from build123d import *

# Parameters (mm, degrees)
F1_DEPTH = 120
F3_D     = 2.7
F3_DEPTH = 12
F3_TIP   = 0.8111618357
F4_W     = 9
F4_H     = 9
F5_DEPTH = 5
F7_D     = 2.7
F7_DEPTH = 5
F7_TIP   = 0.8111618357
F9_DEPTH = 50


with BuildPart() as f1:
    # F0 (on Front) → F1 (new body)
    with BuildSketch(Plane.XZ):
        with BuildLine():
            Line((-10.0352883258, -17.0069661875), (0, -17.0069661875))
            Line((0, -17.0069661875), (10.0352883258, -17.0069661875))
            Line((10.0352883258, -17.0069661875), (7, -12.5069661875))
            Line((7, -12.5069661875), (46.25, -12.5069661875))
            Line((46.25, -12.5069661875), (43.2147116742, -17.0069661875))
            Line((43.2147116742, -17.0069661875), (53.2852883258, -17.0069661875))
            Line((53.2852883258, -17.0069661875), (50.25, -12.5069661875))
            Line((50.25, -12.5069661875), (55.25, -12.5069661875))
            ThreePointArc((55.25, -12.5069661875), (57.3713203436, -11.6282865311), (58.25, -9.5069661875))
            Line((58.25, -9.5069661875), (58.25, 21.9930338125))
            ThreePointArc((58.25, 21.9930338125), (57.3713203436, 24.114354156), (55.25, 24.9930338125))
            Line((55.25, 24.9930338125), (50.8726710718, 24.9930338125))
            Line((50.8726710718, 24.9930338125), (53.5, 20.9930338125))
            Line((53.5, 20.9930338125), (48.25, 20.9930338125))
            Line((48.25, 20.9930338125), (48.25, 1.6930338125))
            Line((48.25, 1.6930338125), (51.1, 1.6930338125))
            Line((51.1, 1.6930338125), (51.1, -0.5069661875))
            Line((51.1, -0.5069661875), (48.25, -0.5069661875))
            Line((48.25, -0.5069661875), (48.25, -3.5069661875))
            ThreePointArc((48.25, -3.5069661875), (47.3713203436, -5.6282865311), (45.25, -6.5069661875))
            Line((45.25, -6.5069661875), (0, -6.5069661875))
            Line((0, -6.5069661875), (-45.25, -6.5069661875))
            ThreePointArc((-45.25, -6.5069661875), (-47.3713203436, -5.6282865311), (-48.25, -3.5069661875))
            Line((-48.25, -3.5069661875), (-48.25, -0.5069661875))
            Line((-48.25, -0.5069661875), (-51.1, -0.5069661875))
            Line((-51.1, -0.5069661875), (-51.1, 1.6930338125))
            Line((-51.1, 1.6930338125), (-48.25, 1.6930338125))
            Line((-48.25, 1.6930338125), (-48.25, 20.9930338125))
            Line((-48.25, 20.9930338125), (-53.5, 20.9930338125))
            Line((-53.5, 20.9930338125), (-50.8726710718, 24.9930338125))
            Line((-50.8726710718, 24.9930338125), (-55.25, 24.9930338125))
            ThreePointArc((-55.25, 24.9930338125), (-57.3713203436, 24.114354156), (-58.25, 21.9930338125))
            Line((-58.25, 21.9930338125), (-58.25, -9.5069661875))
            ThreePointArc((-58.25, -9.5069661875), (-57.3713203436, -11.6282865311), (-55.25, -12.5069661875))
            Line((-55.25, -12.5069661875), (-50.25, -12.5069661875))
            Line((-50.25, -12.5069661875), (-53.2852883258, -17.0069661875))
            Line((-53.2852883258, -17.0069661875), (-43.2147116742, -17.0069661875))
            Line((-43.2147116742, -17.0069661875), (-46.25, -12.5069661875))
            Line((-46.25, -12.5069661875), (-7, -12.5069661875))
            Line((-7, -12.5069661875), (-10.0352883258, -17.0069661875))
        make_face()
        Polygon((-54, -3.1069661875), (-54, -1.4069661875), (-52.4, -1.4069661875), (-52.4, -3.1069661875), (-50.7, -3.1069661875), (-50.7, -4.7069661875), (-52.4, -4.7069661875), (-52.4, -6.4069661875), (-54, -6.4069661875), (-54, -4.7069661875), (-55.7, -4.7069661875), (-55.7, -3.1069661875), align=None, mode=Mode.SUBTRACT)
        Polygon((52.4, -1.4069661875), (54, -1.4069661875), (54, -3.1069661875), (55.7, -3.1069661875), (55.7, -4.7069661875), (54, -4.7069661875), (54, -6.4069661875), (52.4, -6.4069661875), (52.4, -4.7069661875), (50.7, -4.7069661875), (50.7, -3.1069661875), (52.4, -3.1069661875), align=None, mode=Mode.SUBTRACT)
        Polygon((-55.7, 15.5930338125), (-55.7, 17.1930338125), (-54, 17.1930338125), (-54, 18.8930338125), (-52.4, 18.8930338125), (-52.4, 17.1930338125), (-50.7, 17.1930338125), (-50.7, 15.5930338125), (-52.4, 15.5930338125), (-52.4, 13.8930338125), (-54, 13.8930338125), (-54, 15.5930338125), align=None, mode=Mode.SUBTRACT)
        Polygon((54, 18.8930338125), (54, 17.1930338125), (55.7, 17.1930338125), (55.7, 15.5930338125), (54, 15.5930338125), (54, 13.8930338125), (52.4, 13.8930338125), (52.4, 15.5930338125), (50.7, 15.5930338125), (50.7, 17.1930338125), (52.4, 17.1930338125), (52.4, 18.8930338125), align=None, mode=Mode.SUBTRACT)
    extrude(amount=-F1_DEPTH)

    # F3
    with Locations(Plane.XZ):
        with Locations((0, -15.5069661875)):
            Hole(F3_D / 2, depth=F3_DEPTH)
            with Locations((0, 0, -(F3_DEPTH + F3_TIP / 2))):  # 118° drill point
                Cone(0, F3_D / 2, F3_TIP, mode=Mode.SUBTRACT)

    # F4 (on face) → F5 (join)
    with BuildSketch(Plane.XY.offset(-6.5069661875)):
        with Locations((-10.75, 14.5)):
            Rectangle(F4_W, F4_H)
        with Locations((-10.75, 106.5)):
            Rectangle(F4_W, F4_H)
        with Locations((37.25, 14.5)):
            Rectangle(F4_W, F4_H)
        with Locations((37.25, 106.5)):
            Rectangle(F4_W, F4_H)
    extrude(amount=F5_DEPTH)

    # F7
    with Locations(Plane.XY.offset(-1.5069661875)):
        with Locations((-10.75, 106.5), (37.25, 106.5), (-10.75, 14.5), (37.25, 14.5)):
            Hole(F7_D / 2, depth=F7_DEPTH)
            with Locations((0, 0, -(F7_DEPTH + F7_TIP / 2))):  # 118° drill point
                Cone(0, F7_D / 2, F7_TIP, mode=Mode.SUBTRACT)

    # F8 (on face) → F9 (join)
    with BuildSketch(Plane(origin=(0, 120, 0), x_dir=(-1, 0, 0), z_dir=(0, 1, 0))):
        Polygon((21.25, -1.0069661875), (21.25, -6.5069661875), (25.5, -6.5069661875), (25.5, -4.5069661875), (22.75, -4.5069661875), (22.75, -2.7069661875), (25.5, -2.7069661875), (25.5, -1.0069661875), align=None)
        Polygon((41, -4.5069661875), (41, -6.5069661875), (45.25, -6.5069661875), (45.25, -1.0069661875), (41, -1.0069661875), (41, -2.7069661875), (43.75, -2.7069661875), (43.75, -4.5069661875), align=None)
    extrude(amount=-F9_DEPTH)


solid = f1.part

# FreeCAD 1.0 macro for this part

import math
import FreeCAD as App
import Part
import Sketcher

V = App.Vector
Q = App.Units.Quantity

doc = App.newDocument("Part")
params = doc.addObject("Spreadsheet::Sheet", "Params")
for row, (alias, value) in enumerate([
    ("sketch1_radius", "3 mm"),
    ("sketch1_width", "5 mm"),
    ("sketch1_height", "3 mm"),
    ("sketch1_width2", "90.5 mm"),
    ("sketch1_width3", "1.7 mm"),
    ("pad1_length", "120 mm"),
    ("sketch2_diameter", "2.7 mm"),
    ("hole_diameter", "2.7 mm"),
    ("hole_depth", "12 mm"),
    ("sketch3_width", "9 mm"),
    ("pad2_length", "5 mm"),
    ("sketch4_diameter", "2.7 mm"),
    ("hole2_diameter", "2.7 mm"),
    ("hole2_depth", "5 mm"),
    ("sketch5_height", "2 mm"),
    ("sketch5_height2", "5.5 mm"),
    ("sketch5_height3", "1.8 mm"),
    ("sketch5_width", "4.25 mm"),
    ("sketch5_width2", "2.75 mm"),
    ("pad3_length", "50 mm"),
], start=1):
    params.set(f"A{row}", alias)
    params.set(f"B{row}", "=" + value)
    params.setAlias(f"B{row}", alias)

body = doc.addObject("PartDesign::Body", "Body")

sketch1 = body.newObject("Sketcher::SketchObject", "Sketch")
sketch1.AttachmentSupport = (doc.getObject("XZ_Plane"), [""])
sketch1.MapMode = "FlatFace"
sketch1.addGeometry(Part.LineSegment(V(-10, -17, 0), V(10, -17, 0)), False)
sketch1.addGeometry(Part.LineSegment(V(10, -17, 0), V(7, -12.5, 0)), False)
sketch1.addGeometry(Part.LineSegment(V(7, -12.5, 0), V(46.2, -12.5, 0)), False)
sketch1.addGeometry(Part.LineSegment(V(46.2, -12.5, 0), V(43.2, -17, 0)), False)
sketch1.addGeometry(Part.LineSegment(V(43.2, -17, 0), V(53.3, -17, 0)), False)
sketch1.addGeometry(Part.LineSegment(V(53.3, -17, 0), V(50.2, -12.5, 0)), False)
sketch1.addGeometry(Part.LineSegment(V(50.2, -12.5, 0), V(55.2, -12.5, 0)), False)
sketch1.addGeometry(Part.ArcOfCircle(Part.Circle(V(55.2, -9.5, 0), V(0, 0, 1), 3), math.radians(-90), math.radians(0)), False)
sketch1.addGeometry(Part.LineSegment(V(58.2, -9.5, 0), V(58.2, 22, 0)), False)
sketch1.addGeometry(Part.ArcOfCircle(Part.Circle(V(55.2, 22, 0), V(0, 0, 1), 3), math.radians(0), math.radians(90)), False)
sketch1.addGeometry(Part.LineSegment(V(55.2, 25, 0), V(50.9, 25, 0)), False)
sketch1.addGeometry(Part.LineSegment(V(50.9, 25, 0), V(53.5, 21, 0)), False)
sketch1.addGeometry(Part.LineSegment(V(53.5, 21, 0), V(48.2, 21, 0)), False)
sketch1.addGeometry(Part.LineSegment(V(48.2, 21, 0), V(48.2, 1.7, 0)), False)
sketch1.addGeometry(Part.LineSegment(V(48.2, 1.7, 0), V(51.1, 1.7, 0)), False)
sketch1.addGeometry(Part.LineSegment(V(51.1, 1.7, 0), V(51.1, -0.5, 0)), False)
sketch1.addGeometry(Part.LineSegment(V(51.1, -0.5, 0), V(48.2, -0.5, 0)), False)
sketch1.addGeometry(Part.LineSegment(V(48.2, -0.5, 0), V(48.2, -3.5, 0)), False)
sketch1.addGeometry(Part.ArcOfCircle(Part.Circle(V(45.2, -3.5, 0), V(0, 0, 1), 3), math.radians(-90), math.radians(0)), False)
sketch1.addGeometry(Part.LineSegment(V(45.2, -6.5, 0), V(-45.2, -6.5, 0)), False)
sketch1.addGeometry(Part.ArcOfCircle(Part.Circle(V(-45.2, -3.5, 0), V(0, 0, 1), 3), math.radians(180), math.radians(270)), False)
sketch1.addGeometry(Part.LineSegment(V(-48.2, -3.5, 0), V(-48.2, -0.5, 0)), False)
sketch1.addGeometry(Part.LineSegment(V(-48.2, -0.5, 0), V(-51.1, -0.5, 0)), False)
sketch1.addGeometry(Part.LineSegment(V(-51.1, -0.5, 0), V(-51.1, 1.7, 0)), False)
sketch1.addGeometry(Part.LineSegment(V(-51.1, 1.7, 0), V(-48.2, 1.7, 0)), False)
sketch1.addGeometry(Part.LineSegment(V(-48.2, 1.7, 0), V(-48.2, 21, 0)), False)
sketch1.addGeometry(Part.LineSegment(V(-48.2, 21, 0), V(-53.5, 21, 0)), False)
sketch1.addGeometry(Part.LineSegment(V(-53.5, 21, 0), V(-50.9, 25, 0)), False)
sketch1.addGeometry(Part.LineSegment(V(-50.9, 25, 0), V(-55.2, 25, 0)), False)
sketch1.addGeometry(Part.ArcOfCircle(Part.Circle(V(-55.2, 22, 0), V(0, 0, 1), 3), math.radians(90), math.radians(180)), False)
sketch1.addGeometry(Part.LineSegment(V(-58.2, 22, 0), V(-58.2, -9.5, 0)), False)
sketch1.addGeometry(Part.ArcOfCircle(Part.Circle(V(-55.2, -9.5, 0), V(0, 0, 1), 3), math.radians(180), math.radians(270)), False)
sketch1.addGeometry(Part.LineSegment(V(-55.2, -12.5, 0), V(-50.2, -12.5, 0)), False)
sketch1.addGeometry(Part.LineSegment(V(-50.2, -12.5, 0), V(-53.3, -17, 0)), False)
sketch1.addGeometry(Part.LineSegment(V(-53.3, -17, 0), V(-43.2, -17, 0)), False)
sketch1.addGeometry(Part.LineSegment(V(-43.2, -17, 0), V(-46.2, -12.5, 0)), False)
sketch1.addGeometry(Part.LineSegment(V(-46.2, -12.5, 0), V(-7, -12.5, 0)), False)
sketch1.addGeometry(Part.LineSegment(V(-7, -12.5, 0), V(-10, -17, 0)), False)
sketch1.addGeometry(Part.LineSegment(V(-55.7, -3.1, 0), V(-54, -3.1, 0)), False)
sketch1.addGeometry(Part.LineSegment(V(-54, -3.1, 0), V(-54, -1.4, 0)), False)
sketch1.addGeometry(Part.LineSegment(V(-54, -1.4, 0), V(-52.4, -1.4, 0)), False)
sketch1.addGeometry(Part.LineSegment(V(-52.4, -1.4, 0), V(-52.4, -3.1, 0)), False)
sketch1.addGeometry(Part.LineSegment(V(-52.4, -3.1, 0), V(-50.7, -3.1, 0)), False)
sketch1.addGeometry(Part.LineSegment(V(-50.7, -3.1, 0), V(-50.7, -4.7, 0)), False)
sketch1.addGeometry(Part.LineSegment(V(-50.7, -4.7, 0), V(-52.4, -4.7, 0)), False)
sketch1.addGeometry(Part.LineSegment(V(-52.4, -4.7, 0), V(-52.4, -6.4, 0)), False)
sketch1.addGeometry(Part.LineSegment(V(-52.4, -6.4, 0), V(-54, -6.4, 0)), False)
sketch1.addGeometry(Part.LineSegment(V(-54, -6.4, 0), V(-54, -4.7, 0)), False)
sketch1.addGeometry(Part.LineSegment(V(-54, -4.7, 0), V(-55.7, -4.7, 0)), False)
sketch1.addGeometry(Part.LineSegment(V(-55.7, -4.7, 0), V(-55.7, -3.1, 0)), False)
sketch1.addGeometry(Part.LineSegment(V(52.4, -3.1, 0), V(52.4, -1.4, 0)), False)
sketch1.addGeometry(Part.LineSegment(V(52.4, -1.4, 0), V(54, -1.4, 0)), False)
sketch1.addGeometry(Part.LineSegment(V(54, -1.4, 0), V(54, -3.1, 0)), False)
sketch1.addGeometry(Part.LineSegment(V(54, -3.1, 0), V(55.7, -3.1, 0)), False)
sketch1.addGeometry(Part.LineSegment(V(55.7, -3.1, 0), V(55.7, -4.7, 0)), False)
sketch1.addGeometry(Part.LineSegment(V(55.7, -4.7, 0), V(54, -4.7, 0)), False)
sketch1.addGeometry(Part.LineSegment(V(54, -4.7, 0), V(54, -6.4, 0)), False)
sketch1.addGeometry(Part.LineSegment(V(54, -6.4, 0), V(52.4, -6.4, 0)), False)
sketch1.addGeometry(Part.LineSegment(V(52.4, -6.4, 0), V(52.4, -4.7, 0)), False)
sketch1.addGeometry(Part.LineSegment(V(52.4, -4.7, 0), V(50.7, -4.7, 0)), False)
sketch1.addGeometry(Part.LineSegment(V(50.7, -4.7, 0), V(50.7, -3.1, 0)), False)
sketch1.addGeometry(Part.LineSegment(V(50.7, -3.1, 0), V(52.4, -3.1, 0)), False)
sketch1.addGeometry(Part.LineSegment(V(-54, 15.6, 0), V(-55.7, 15.6, 0)), False)
sketch1.addGeometry(Part.LineSegment(V(-55.7, 15.6, 0), V(-55.7, 17.2, 0)), False)
sketch1.addGeometry(Part.LineSegment(V(-55.7, 17.2, 0), V(-54, 17.2, 0)), False)
sketch1.addGeometry(Part.LineSegment(V(-54, 17.2, 0), V(-54, 18.9, 0)), False)
sketch1.addGeometry(Part.LineSegment(V(-54, 18.9, 0), V(-52.4, 18.9, 0)), False)
sketch1.addGeometry(Part.LineSegment(V(-52.4, 18.9, 0), V(-52.4, 17.2, 0)), False)
sketch1.addGeometry(Part.LineSegment(V(-52.4, 17.2, 0), V(-50.7, 17.2, 0)), False)
sketch1.addGeometry(Part.LineSegment(V(-50.7, 17.2, 0), V(-50.7, 15.6, 0)), False)
sketch1.addGeometry(Part.LineSegment(V(-50.7, 15.6, 0), V(-52.4, 15.6, 0)), False)
sketch1.addGeometry(Part.LineSegment(V(-52.4, 15.6, 0), V(-52.4, 13.9, 0)), False)
sketch1.addGeometry(Part.LineSegment(V(-52.4, 13.9, 0), V(-54, 13.9, 0)), False)
sketch1.addGeometry(Part.LineSegment(V(-54, 13.9, 0), V(-54, 15.6, 0)), False)
sketch1.addGeometry(Part.LineSegment(V(52.4, 18.9, 0), V(54, 18.9, 0)), False)
sketch1.addGeometry(Part.LineSegment(V(54, 18.9, 0), V(54, 17.2, 0)), False)
sketch1.addGeometry(Part.LineSegment(V(54, 17.2, 0), V(55.7, 17.2, 0)), False)
sketch1.addGeometry(Part.LineSegment(V(55.7, 17.2, 0), V(55.7, 15.6, 0)), False)
sketch1.addGeometry(Part.LineSegment(V(55.7, 15.6, 0), V(54, 15.6, 0)), False)
sketch1.addGeometry(Part.LineSegment(V(54, 15.6, 0), V(54, 13.9, 0)), False)
sketch1.addGeometry(Part.LineSegment(V(54, 13.9, 0), V(52.4, 13.9, 0)), False)
sketch1.addGeometry(Part.LineSegment(V(52.4, 13.9, 0), V(52.4, 15.6, 0)), False)
sketch1.addGeometry(Part.LineSegment(V(52.4, 15.6, 0), V(50.7, 15.6, 0)), False)
sketch1.addGeometry(Part.LineSegment(V(50.7, 15.6, 0), V(50.7, 17.2, 0)), False)
sketch1.addGeometry(Part.LineSegment(V(50.7, 17.2, 0), V(52.4, 17.2, 0)), False)
sketch1.addGeometry(Part.LineSegment(V(52.4, 17.2, 0), V(52.4, 18.9, 0)), False)
sketch1.addConstraint(Sketcher.Constraint("Coincident", 0, 2, 1, 1))
sketch1.addConstraint(Sketcher.Constraint("Coincident", 1, 2, 2, 1))
sketch1.addConstraint(Sketcher.Constraint("Coincident", 2, 2, 3, 1))
sketch1.addConstraint(Sketcher.Constraint("Coincident", 3, 2, 4, 1))
sketch1.addConstraint(Sketcher.Constraint("Coincident", 4, 2, 5, 1))
sketch1.addConstraint(Sketcher.Constraint("Coincident", 5, 2, 6, 1))
sketch1.addConstraint(Sketcher.Constraint("Tangent", 6, 2, 7, 1))
sketch1.addConstraint(Sketcher.Constraint("Tangent", 7, 2, 8, 1))
sketch1.addConstraint(Sketcher.Constraint("Tangent", 8, 2, 9, 1))
sketch1.addConstraint(Sketcher.Constraint("Tangent", 9, 2, 10, 1))
sketch1.addConstraint(Sketcher.Constraint("Coincident", 10, 2, 11, 1))
sketch1.addConstraint(Sketcher.Constraint("Coincident", 11, 2, 12, 1))
sketch1.addConstraint(Sketcher.Constraint("Coincident", 12, 2, 13, 1))
sketch1.addConstraint(Sketcher.Constraint("Coincident", 13, 2, 14, 1))
sketch1.addConstraint(Sketcher.Constraint("Coincident", 14, 2, 15, 1))
sketch1.addConstraint(Sketcher.Constraint("Coincident", 15, 2, 16, 1))
sketch1.addConstraint(Sketcher.Constraint("Coincident", 16, 2, 17, 1))
sketch1.addConstraint(Sketcher.Constraint("Tangent", 17, 2, 18, 2))
sketch1.addConstraint(Sketcher.Constraint("Tangent", 18, 1, 19, 1))
sketch1.addConstraint(Sketcher.Constraint("Tangent", 19, 2, 20, 2))
sketch1.addConstraint(Sketcher.Constraint("Tangent", 20, 1, 21, 1))
sketch1.addConstraint(Sketcher.Constraint("Coincident", 21, 2, 22, 1))
sketch1.addConstraint(Sketcher.Constraint("Coincident", 22, 2, 23, 1))
sketch1.addConstraint(Sketcher.Constraint("Coincident", 23, 2, 24, 1))
sketch1.addConstraint(Sketcher.Constraint("Coincident", 24, 2, 25, 1))
sketch1.addConstraint(Sketcher.Constraint("Coincident", 25, 2, 26, 1))
sketch1.addConstraint(Sketcher.Constraint("Coincident", 26, 2, 27, 1))
sketch1.addConstraint(Sketcher.Constraint("Coincident", 27, 2, 28, 1))
sketch1.addConstraint(Sketcher.Constraint("Tangent", 28, 2, 29, 1))
sketch1.addConstraint(Sketcher.Constraint("Tangent", 29, 2, 30, 1))
sketch1.addConstraint(Sketcher.Constraint("Tangent", 30, 2, 31, 1))
sketch1.addConstraint(Sketcher.Constraint("Tangent", 31, 2, 32, 1))
sketch1.addConstraint(Sketcher.Constraint("Coincident", 32, 2, 33, 1))
sketch1.addConstraint(Sketcher.Constraint("Coincident", 33, 2, 34, 1))
sketch1.addConstraint(Sketcher.Constraint("Coincident", 34, 2, 35, 1))
sketch1.addConstraint(Sketcher.Constraint("Coincident", 35, 2, 36, 1))
sketch1.addConstraint(Sketcher.Constraint("Coincident", 36, 2, 37, 1))
sketch1.addConstraint(Sketcher.Constraint("Coincident", 37, 2, 0, 1))
sketch1.addConstraint(Sketcher.Constraint("Coincident", 38, 2, 39, 1))
sketch1.addConstraint(Sketcher.Constraint("Coincident", 39, 2, 40, 1))
sketch1.addConstraint(Sketcher.Constraint("Coincident", 40, 2, 41, 1))
sketch1.addConstraint(Sketcher.Constraint("Coincident", 41, 2, 42, 1))
sketch1.addConstraint(Sketcher.Constraint("Coincident", 42, 2, 43, 1))
sketch1.addConstraint(Sketcher.Constraint("Coincident", 43, 2, 44, 1))
sketch1.addConstraint(Sketcher.Constraint("Coincident", 44, 2, 45, 1))
sketch1.addConstraint(Sketcher.Constraint("Coincident", 45, 2, 46, 1))
sketch1.addConstraint(Sketcher.Constraint("Coincident", 46, 2, 47, 1))
sketch1.addConstraint(Sketcher.Constraint("Coincident", 47, 2, 48, 1))
sketch1.addConstraint(Sketcher.Constraint("Coincident", 48, 2, 49, 1))
sketch1.addConstraint(Sketcher.Constraint("Coincident", 49, 2, 38, 1))
sketch1.addConstraint(Sketcher.Constraint("Coincident", 50, 2, 51, 1))
sketch1.addConstraint(Sketcher.Constraint("Coincident", 51, 2, 52, 1))
sketch1.addConstraint(Sketcher.Constraint("Coincident", 52, 2, 53, 1))
sketch1.addConstraint(Sketcher.Constraint("Coincident", 53, 2, 54, 1))
sketch1.addConstraint(Sketcher.Constraint("Coincident", 54, 2, 55, 1))
sketch1.addConstraint(Sketcher.Constraint("Coincident", 55, 2, 56, 1))
sketch1.addConstraint(Sketcher.Constraint("Coincident", 56, 2, 57, 1))
sketch1.addConstraint(Sketcher.Constraint("Coincident", 57, 2, 58, 1))
sketch1.addConstraint(Sketcher.Constraint("Coincident", 58, 2, 59, 1))
sketch1.addConstraint(Sketcher.Constraint("Coincident", 59, 2, 60, 1))
sketch1.addConstraint(Sketcher.Constraint("Coincident", 60, 2, 61, 1))
sketch1.addConstraint(Sketcher.Constraint("Coincident", 61, 2, 50, 1))
sketch1.addConstraint(Sketcher.Constraint("Coincident", 62, 2, 63, 1))
sketch1.addConstraint(Sketcher.Constraint("Coincident", 63, 2, 64, 1))
sketch1.addConstraint(Sketcher.Constraint("Coincident", 64, 2, 65, 1))
sketch1.addConstraint(Sketcher.Constraint("Coincident", 65, 2, 66, 1))
sketch1.addConstraint(Sketcher.Constraint("Coincident", 66, 2, 67, 1))
sketch1.addConstraint(Sketcher.Constraint("Coincident", 67, 2, 68, 1))
sketch1.addConstraint(Sketcher.Constraint("Coincident", 68, 2, 69, 1))
sketch1.addConstraint(Sketcher.Constraint("Coincident", 69, 2, 70, 1))
sketch1.addConstraint(Sketcher.Constraint("Coincident", 70, 2, 71, 1))
sketch1.addConstraint(Sketcher.Constraint("Coincident", 71, 2, 72, 1))
sketch1.addConstraint(Sketcher.Constraint("Coincident", 72, 2, 73, 1))
sketch1.addConstraint(Sketcher.Constraint("Coincident", 73, 2, 62, 1))
sketch1.addConstraint(Sketcher.Constraint("Coincident", 74, 2, 75, 1))
sketch1.addConstraint(Sketcher.Constraint("Coincident", 75, 2, 76, 1))
sketch1.addConstraint(Sketcher.Constraint("Coincident", 76, 2, 77, 1))
sketch1.addConstraint(Sketcher.Constraint("Coincident", 77, 2, 78, 1))
sketch1.addConstraint(Sketcher.Constraint("Coincident", 78, 2, 79, 1))
sketch1.addConstraint(Sketcher.Constraint("Coincident", 79, 2, 80, 1))
sketch1.addConstraint(Sketcher.Constraint("Coincident", 80, 2, 81, 1))
sketch1.addConstraint(Sketcher.Constraint("Coincident", 81, 2, 82, 1))
sketch1.addConstraint(Sketcher.Constraint("Coincident", 82, 2, 83, 1))
sketch1.addConstraint(Sketcher.Constraint("Coincident", 83, 2, 84, 1))
sketch1.addConstraint(Sketcher.Constraint("Coincident", 84, 2, 85, 1))
sketch1.addConstraint(Sketcher.Constraint("Coincident", 85, 2, 74, 1))
sketch1.addConstraint(Sketcher.Constraint("Horizontal", 0))
sketch1.addConstraint(Sketcher.Constraint("Horizontal", 2))
sketch1.addConstraint(Sketcher.Constraint("Horizontal", 4))
sketch1.addConstraint(Sketcher.Constraint("Horizontal", 6))
sketch1.addConstraint(Sketcher.Constraint("Vertical", 8))
sketch1.addConstraint(Sketcher.Constraint("Horizontal", 10))
sketch1.addConstraint(Sketcher.Constraint("Horizontal", 12))
sketch1.addConstraint(Sketcher.Constraint("Vertical", 13))
sketch1.addConstraint(Sketcher.Constraint("Horizontal", 14))
sketch1.addConstraint(Sketcher.Constraint("Vertical", 15))
sketch1.addConstraint(Sketcher.Constraint("Horizontal", 16))
sketch1.addConstraint(Sketcher.Constraint("Vertical", 17))
sketch1.addConstraint(Sketcher.Constraint("Horizontal", 19))
sketch1.addConstraint(Sketcher.Constraint("Vertical", 21))
sketch1.addConstraint(Sketcher.Constraint("Horizontal", 22))
sketch1.addConstraint(Sketcher.Constraint("Vertical", 23))
sketch1.addConstraint(Sketcher.Constraint("Horizontal", 24))
sketch1.addConstraint(Sketcher.Constraint("Vertical", 25))
sketch1.addConstraint(Sketcher.Constraint("Horizontal", 26))
sketch1.addConstraint(Sketcher.Constraint("Horizontal", 28))
sketch1.addConstraint(Sketcher.Constraint("Vertical", 30))
sketch1.addConstraint(Sketcher.Constraint("Horizontal", 32))
sketch1.addConstraint(Sketcher.Constraint("Horizontal", 34))
sketch1.addConstraint(Sketcher.Constraint("Horizontal", 36))
sketch1.addConstraint(Sketcher.Constraint("Horizontal", 38))
sketch1.addConstraint(Sketcher.Constraint("Vertical", 39))
sketch1.addConstraint(Sketcher.Constraint("Horizontal", 40))
sketch1.addConstraint(Sketcher.Constraint("Vertical", 41))
sketch1.addConstraint(Sketcher.Constraint("Horizontal", 42))
sketch1.addConstraint(Sketcher.Constraint("Vertical", 43))
sketch1.addConstraint(Sketcher.Constraint("Horizontal", 44))
sketch1.addConstraint(Sketcher.Constraint("Vertical", 45))
sketch1.addConstraint(Sketcher.Constraint("Horizontal", 46))
sketch1.addConstraint(Sketcher.Constraint("Vertical", 47))
sketch1.addConstraint(Sketcher.Constraint("Horizontal", 48))
sketch1.addConstraint(Sketcher.Constraint("Vertical", 49))
sketch1.addConstraint(Sketcher.Constraint("Vertical", 50))
sketch1.addConstraint(Sketcher.Constraint("Horizontal", 51))
sketch1.addConstraint(Sketcher.Constraint("Vertical", 52))
sketch1.addConstraint(Sketcher.Constraint("Horizontal", 53))
sketch1.addConstraint(Sketcher.Constraint("Vertical", 54))
sketch1.addConstraint(Sketcher.Constraint("Horizontal", 55))
sketch1.addConstraint(Sketcher.Constraint("Vertical", 56))
sketch1.addConstraint(Sketcher.Constraint("Horizontal", 57))
sketch1.addConstraint(Sketcher.Constraint("Vertical", 58))
sketch1.addConstraint(Sketcher.Constraint("Horizontal", 59))
sketch1.addConstraint(Sketcher.Constraint("Vertical", 60))
sketch1.addConstraint(Sketcher.Constraint("Horizontal", 61))
sketch1.addConstraint(Sketcher.Constraint("Horizontal", 62))
sketch1.addConstraint(Sketcher.Constraint("Vertical", 63))
sketch1.addConstraint(Sketcher.Constraint("Horizontal", 64))
sketch1.addConstraint(Sketcher.Constraint("Vertical", 65))
sketch1.addConstraint(Sketcher.Constraint("Horizontal", 66))
sketch1.addConstraint(Sketcher.Constraint("Vertical", 67))
sketch1.addConstraint(Sketcher.Constraint("Horizontal", 68))
sketch1.addConstraint(Sketcher.Constraint("Vertical", 69))
sketch1.addConstraint(Sketcher.Constraint("Horizontal", 70))
sketch1.addConstraint(Sketcher.Constraint("Vertical", 71))
sketch1.addConstraint(Sketcher.Constraint("Horizontal", 72))
sketch1.addConstraint(Sketcher.Constraint("Vertical", 73))
sketch1.addConstraint(Sketcher.Constraint("Horizontal", 74))
sketch1.addConstraint(Sketcher.Constraint("Vertical", 75))
sketch1.addConstraint(Sketcher.Constraint("Horizontal", 76))
sketch1.addConstraint(Sketcher.Constraint("Vertical", 77))
sketch1.addConstraint(Sketcher.Constraint("Horizontal", 78))
sketch1.addConstraint(Sketcher.Constraint("Vertical", 79))
sketch1.addConstraint(Sketcher.Constraint("Horizontal", 80))
sketch1.addConstraint(Sketcher.Constraint("Vertical", 81))
sketch1.addConstraint(Sketcher.Constraint("Horizontal", 82))
sketch1.addConstraint(Sketcher.Constraint("Vertical", 83))
sketch1.addConstraint(Sketcher.Constraint("Horizontal", 84))
sketch1.addConstraint(Sketcher.Constraint("Vertical", 85))
sketch1.addConstraint(Sketcher.Constraint("Equal", 7, 9))
sketch1.addConstraint(Sketcher.Constraint("Equal", 9, 18))
sketch1.addConstraint(Sketcher.Constraint("Equal", 18, 20))
sketch1.addConstraint(Sketcher.Constraint("Equal", 20, 29))
sketch1.addConstraint(Sketcher.Constraint("Equal", 29, 31))
sketch1.addConstraint(Sketcher.Constraint("Symmetric", 9, 3, 29, 3, -2))
sketch1.addConstraint(Sketcher.Constraint("Symmetric", 16, 2, 21, 2, -2))
sketch1.addConstraint(Sketcher.Constraint("Symmetric", 14, 2, 23, 2, -2))
sketch1.addConstraint(Sketcher.Constraint("Symmetric", 12, 2, 25, 2, -2))
sketch1.addConstraint(Sketcher.Constraint("Symmetric", 5, 2, 32, 2, -2))
sketch1.addConstraint(Sketcher.Constraint("Symmetric", 4, 2, 33, 2, -2))
sketch1.addConstraint(Sketcher.Constraint("Symmetric", 2, 2, 35, 2, -2))
sketch1.addConstraint(Sketcher.Constraint("Symmetric", 40, 2, 50, 2, -2))
sketch1.addConstraint(Sketcher.Constraint("Symmetric", 38, 2, 52, 2, -2))
sketch1.addConstraint(Sketcher.Constraint("Symmetric", 48, 2, 54, 2, -2))
sketch1.addConstraint(Sketcher.Constraint("Symmetric", 46, 2, 56, 2, -2))
sketch1.addConstraint(Sketcher.Constraint("Symmetric", 44, 2, 58, 2, -2))
sketch1.addConstraint(Sketcher.Constraint("Symmetric", 42, 2, 60, 2, -2))
sketch1.addConstraint(Sketcher.Constraint("Symmetric", 65, 2, 74, 2, -2))
sketch1.addConstraint(Sketcher.Constraint("Symmetric", 63, 2, 76, 2, -2))
sketch1.addConstraint(Sketcher.Constraint("Symmetric", 73, 2, 78, 2, -2))
sketch1.addConstraint(Sketcher.Constraint("Symmetric", 71, 2, 80, 2, -2))
sketch1.addConstraint(Sketcher.Constraint("Symmetric", 69, 2, 82, 2, -2))
sketch1.addConstraint(Sketcher.Constraint("Symmetric", 67, 2, 84, 2, -2))
sketch1.addConstraint(Sketcher.Constraint("Parallel", 1, 5))
sketch1.addConstraint(Sketcher.Constraint("Parallel", 3, 33))
sketch1.addConstraint(Sketcher.Constraint("Parallel", 5, 35))
sketch1.addConstraint(Sketcher.Constraint("Parallel", 33, 37))
sketch1.addConstraint(Sketcher.Constraint("Horizontal", 0, 2, 3, 2))
sketch1.addConstraint(Sketcher.Constraint("Horizontal", 2, 2, 5, 2))
sketch1.addConstraint(Sketcher.Constraint("Horizontal", 38, 2, 41, 2))
sketch1.addConstraint(Sketcher.Constraint("Horizontal", 44, 2, 47, 2))
sketch1.addConstraint(Sketcher.Constraint("Horizontal", 64, 2, 67, 2))
sketch1.addConstraint(Sketcher.Constraint("Horizontal", 62, 2, 69, 2))
sketch1.addConstraint(Sketcher.Constraint("Vertical", 13, 2, 16, 2))
sketch1.addConstraint(Sketcher.Constraint("Vertical", 41, 2, 44, 2))
sketch1.addConstraint(Sketcher.Constraint("Vertical", 39, 2, 46, 2))
sketch1.addConstraint(Sketcher.Constraint("Vertical", 49, 2, 62, 2))
sketch1.addConstraint(Sketcher.Constraint("Vertical", 47, 2, 64, 2))
sketch1.addConstraint(Sketcher.Constraint("Vertical", 45, 2, 66, 2))
sketch1.addConstraint(Sketcher.Constraint("Vertical", 43, 2, 68, 2))
sketch1.addConstraint(Sketcher.Constraint("Vertical", 67, 2, 70, 2))
sketch1.addConstraint(Sketcher.Constraint("Vertical", 65, 2, 72, 2))
sketch1.addConstraint(Sketcher.Constraint("Equal", 12, 26))
sketch1.addConstraint(Sketcher.Constraint("Equal", 10, 28))
sketch1.addConstraint(Sketcher.Constraint("Equal", 2, 36))
sketch1.addConstraint(Sketcher.Constraint("Equal", 38, 42))
sketch1.addConstraint(Sketcher.Constraint("Equal", 84, 39))
sketch1.addConstraint(Sketcher.Constraint("Equal", 80, 43))
sketch1.addConstraint(Sketcher.Constraint("Equal", 41, 45))
sketch1.addConstraint(Sketcher.Constraint("Equal", 60, 63))
sketch1.addConstraint(Sketcher.Constraint("Equal", 58, 65))
sketch1.addConstraint(Sketcher.Constraint("Equal", 67, 71))
sketch1.addConstraint(Sketcher.Constraint("Radius", 7, Q("3 mm")))
sketch1.addConstraint(Sketcher.Constraint("DistanceX", 6, 1, 6, 2, Q("5 mm")))
sketch1.addConstraint(Sketcher.Constraint("DistanceY", 17, 2, 17, 1, Q("3 mm")))
sketch1.addConstraint(Sketcher.Constraint("Angle", 1, Q("124 deg")))
sketch1.addConstraint(Sketcher.Constraint("DistanceX", 19, 2, 19, 1, Q("90.5 mm")))
sketch1.addConstraint(Sketcher.Constraint("DistanceX", 38, 1, 38, 2, Q("1.7 mm")))
sketch1.addConstraint(Sketcher.Constraint("DistanceX", 40, 1, 40, 2, Q("1.6 mm")))
sketch1.addConstraint(Sketcher.Constraint("DistanceY", 8, 1, 8, 2, Q("31.5 mm")))
sketch1.addConstraint(Sketcher.Constraint("DistanceY", 13, 2, 13, 1, Q("19.3 mm")))
sketch1.addConstraint(Sketcher.Constraint("DistanceY", 15, 2, 15, 1, Q("2.2 mm")))
sketch1.addConstraint(Sketcher.Constraint("DistanceX", -1, 1, 1, 2, Q("7 mm")))
sketch1.addConstraint(Sketcher.Constraint("DistanceX", 38, 2, -1, 1, Q("54 mm")))
sketch1.addConstraint(Sketcher.Constraint("DistanceX", 2, 1, 2, 2, Q("39.25 mm")))
sketch1.addConstraint(Sketcher.Constraint("DistanceX", 12, 2, 12, 1, Q("5.25 mm")))
sketch1.addConstraint(Sketcher.Constraint("DistanceX", 14, 1, 14, 2, Q("2.85 mm")))
sketch1.addConstraint(Sketcher.Constraint("DistanceX", -1, 1, 7, 3, Q("55.25 mm")))
sketch1.addConstraint(Sketcher.Constraint("DistanceX", 10, 2, 10, 1, Q("4.377329 mm")))
sketch1.addConstraint(Sketcher.Constraint("Distance", 1, Q("5.427981 mm")))
sketch1.addConstraint(Sketcher.Constraint("Distance", 11, Q("4.785693 mm")))
sketch1.addConstraint(Sketcher.Constraint("DistanceY", 7, 3, -1, 1, Q("9.506966 mm")))
sketch1.addConstraint(Sketcher.Constraint("DistanceY", 38, 2, -1, 1, Q("3.106966 mm")))
sketch1.addConstraint(Sketcher.Constraint("DistanceY", -1, 1, 62, 2, Q("15.593034 mm")))
sketch1.setExpression("Constraints[211]", "Params.sketch1_radius")
sketch1.setExpression("Constraints[212]", "Params.sketch1_width")
sketch1.setExpression("Constraints[213]", "Params.sketch1_height")
sketch1.setExpression("Constraints[215]", "Params.sketch1_width2")
sketch1.setExpression("Constraints[216]", "Params.sketch1_width3")
pad1 = body.newObject("PartDesign::Pad", "Pad")
pad1.Profile = sketch1
pad1.setExpression("Length", "Params.pad1_length")
pad1.Reversed = True

sketch2 = body.newObject("Sketcher::SketchObject", "Sketch001")
sketch2.AttachmentSupport = (doc.getObject("XZ_Plane"), [""])
sketch2.MapMode = "FlatFace"
sketch2.addGeometry(Part.Circle(V(0, -15.5, 0), V(0, 0, 1), 1.4), False)
sketch2.addConstraint(Sketcher.Constraint("PointOnObject", 0, 3, -2))
sketch2.addConstraint(Sketcher.Constraint("Diameter", 0, Q("2.7 mm")))
sketch2.addConstraint(Sketcher.Constraint("DistanceY", 0, 3, -1, 1, Q("15.506966 mm")))
sketch2.setExpression("Constraints[1]", "Params.sketch2_diameter")
doc.recompute()
hole = body.newObject("PartDesign::Hole", "Hole")
hole.Profile = sketch2
hole.ThreadType = "None"
hole.setExpression("Diameter", "Params.hole_diameter")
hole.DepthType = "Dimension"
hole.setExpression("Depth", "Params.hole_depth")
hole.DrillPoint = "Angled"
hole.DrillPointAngle = 118

sketch3 = body.newObject("Sketcher::SketchObject", "Sketch002")
sketch3.AttachmentSupport = (doc.getObject("XY_Plane"), [""])
sketch3.MapMode = "FlatFace"
sketch3.AttachmentOffset = App.Placement(V(0, 0, -6.506966), App.Rotation())
sketch3.addGeometry(Part.LineSegment(V(-15, 19, 0), V(-15, 10, 0)), False)
sketch3.addGeometry(Part.LineSegment(V(-15, 10, 0), V(-6, 10, 0)), False)
sketch3.addGeometry(Part.LineSegment(V(-6, 10, 0), V(-6, 19, 0)), False)
sketch3.addGeometry(Part.LineSegment(V(-6, 19, 0), V(-15, 19, 0)), False)
sketch3.addGeometry(Part.LineSegment(V(-15, 111, 0), V(-15, 102, 0)), False)
sketch3.addGeometry(Part.LineSegment(V(-15, 102, 0), V(-6, 102, 0)), False)
sketch3.addGeometry(Part.LineSegment(V(-6, 102, 0), V(-6, 111, 0)), False)
sketch3.addGeometry(Part.LineSegment(V(-6, 111, 0), V(-15, 111, 0)), False)
sketch3.addGeometry(Part.LineSegment(V(33, 19, 0), V(33, 10, 0)), False)
sketch3.addGeometry(Part.LineSegment(V(33, 10, 0), V(42, 10, 0)), False)
sketch3.addGeometry(Part.LineSegment(V(42, 10, 0), V(42, 19, 0)), False)
sketch3.addGeometry(Part.LineSegment(V(42, 19, 0), V(33, 19, 0)), False)
sketch3.addGeometry(Part.LineSegment(V(33, 111, 0), V(33, 102, 0)), False)
sketch3.addGeometry(Part.LineSegment(V(33, 102, 0), V(42, 102, 0)), False)
sketch3.addGeometry(Part.LineSegment(V(42, 102, 0), V(42, 111, 0)), False)
sketch3.addGeometry(Part.LineSegment(V(42, 111, 0), V(33, 111, 0)), False)
sketch3.addConstraint(Sketcher.Constraint("Coincident", 0, 2, 1, 1))
sketch3.addConstraint(Sketcher.Constraint("Coincident", 1, 2, 2, 1))
sketch3.addConstraint(Sketcher.Constraint("Coincident", 2, 2, 3, 1))
sketch3.addConstraint(Sketcher.Constraint("Coincident", 3, 2, 0, 1))
sketch3.addConstraint(Sketcher.Constraint("Coincident", 4, 2, 5, 1))
sketch3.addConstraint(Sketcher.Constraint("Coincident", 5, 2, 6, 1))
sketch3.addConstraint(Sketcher.Constraint("Coincident", 6, 2, 7, 1))
sketch3.addConstraint(Sketcher.Constraint("Coincident", 7, 2, 4, 1))
sketch3.addConstraint(Sketcher.Constraint("Coincident", 8, 2, 9, 1))
sketch3.addConstraint(Sketcher.Constraint("Coincident", 9, 2, 10, 1))
sketch3.addConstraint(Sketcher.Constraint("Coincident", 10, 2, 11, 1))
sketch3.addConstraint(Sketcher.Constraint("Coincident", 11, 2, 8, 1))
sketch3.addConstraint(Sketcher.Constraint("Coincident", 12, 2, 13, 1))
sketch3.addConstraint(Sketcher.Constraint("Coincident", 13, 2, 14, 1))
sketch3.addConstraint(Sketcher.Constraint("Coincident", 14, 2, 15, 1))
sketch3.addConstraint(Sketcher.Constraint("Coincident", 15, 2, 12, 1))
sketch3.addConstraint(Sketcher.Constraint("Vertical", 0))
sketch3.addConstraint(Sketcher.Constraint("Horizontal", 1))
sketch3.addConstraint(Sketcher.Constraint("Vertical", 2))
sketch3.addConstraint(Sketcher.Constraint("Horizontal", 3))
sketch3.addConstraint(Sketcher.Constraint("Vertical", 4))
sketch3.addConstraint(Sketcher.Constraint("Horizontal", 5))
sketch3.addConstraint(Sketcher.Constraint("Vertical", 6))
sketch3.addConstraint(Sketcher.Constraint("Horizontal", 7))
sketch3.addConstraint(Sketcher.Constraint("Vertical", 8))
sketch3.addConstraint(Sketcher.Constraint("Horizontal", 9))
sketch3.addConstraint(Sketcher.Constraint("Vertical", 10))
sketch3.addConstraint(Sketcher.Constraint("Horizontal", 11))
sketch3.addConstraint(Sketcher.Constraint("Vertical", 12))
sketch3.addConstraint(Sketcher.Constraint("Horizontal", 13))
sketch3.addConstraint(Sketcher.Constraint("Vertical", 14))
sketch3.addConstraint(Sketcher.Constraint("Horizontal", 15))
sketch3.addConstraint(Sketcher.Constraint("Horizontal", 1, 2, 8, 2))
sketch3.addConstraint(Sketcher.Constraint("Horizontal", 3, 2, 10, 2))
sketch3.addConstraint(Sketcher.Constraint("Horizontal", 5, 2, 12, 2))
sketch3.addConstraint(Sketcher.Constraint("Horizontal", 7, 2, 14, 2))
sketch3.addConstraint(Sketcher.Constraint("Vertical", 3, 2, 4, 2))
sketch3.addConstraint(Sketcher.Constraint("Vertical", 2, 2, 5, 2))
sketch3.addConstraint(Sketcher.Constraint("Vertical", 11, 2, 12, 2))
sketch3.addConstraint(Sketcher.Constraint("Vertical", 10, 2, 13, 2))
sketch3.addConstraint(Sketcher.Constraint("Equal", 7, 9))
sketch3.addConstraint(Sketcher.Constraint("Equal", 15, 0))
sketch3.addConstraint(Sketcher.Constraint("Equal", 2, 4))
sketch3.addConstraint(Sketcher.Constraint("DistanceX", 1, 1, 1, 2, Q("9 mm")))
sketch3.addConstraint(Sketcher.Constraint("DistanceY", -1, 1, 0, 2, Q("10 mm")))
sketch3.addConstraint(Sketcher.Constraint("DistanceY", -1, 1, 4, 2, Q("102 mm")))
sketch3.addConstraint(Sketcher.Constraint("DistanceX", 1, 2, 8, 2, Q("39 mm")))
sketch3.addConstraint(Sketcher.Constraint("DistanceX", 0, 2, -1, 1, Q("15.25 mm")))
sketch3.setExpression("Constraints[43]", "Params.sketch3_width")
pad2 = body.newObject("PartDesign::Pad", "Pad001")
pad2.Profile = sketch3
pad2.setExpression("Length", "Params.pad2_length")

sketch4 = body.newObject("Sketcher::SketchObject", "Sketch003")
sketch4.AttachmentSupport = (doc.getObject("XY_Plane"), [""])
sketch4.MapMode = "FlatFace"
sketch4.AttachmentOffset = App.Placement(V(0, 0, -1.506966), App.Rotation())
sketch4.addGeometry(Part.Circle(V(-10.8, 106.5, 0), V(0, 0, 1), 1.4), False)
sketch4.addGeometry(Part.Circle(V(37.2, 106.5, 0), V(0, 0, 1), 1.4), False)
sketch4.addGeometry(Part.Circle(V(-10.8, 14.5, 0), V(0, 0, 1), 1.4), False)
sketch4.addGeometry(Part.Circle(V(37.2, 14.5, 0), V(0, 0, 1), 1.4), False)
sketch4.addConstraint(Sketcher.Constraint("Equal", 0, 1))
sketch4.addConstraint(Sketcher.Constraint("Equal", 1, 2))
sketch4.addConstraint(Sketcher.Constraint("Equal", 2, 3))
sketch4.addConstraint(Sketcher.Constraint("Horizontal", 0, 3, 1, 3))
sketch4.addConstraint(Sketcher.Constraint("Horizontal", 2, 3, 3, 3))
sketch4.addConstraint(Sketcher.Constraint("Vertical", 0, 3, 2, 3))
sketch4.addConstraint(Sketcher.Constraint("Vertical", 1, 3, 3, 3))
sketch4.addConstraint(Sketcher.Constraint("Diameter", 0, Q("2.7 mm")))
sketch4.addConstraint(Sketcher.Constraint("DistanceX", 0, 3, 1, 3, Q("48 mm")))
sketch4.addConstraint(Sketcher.Constraint("DistanceY", 2, 3, 0, 3, Q("92 mm")))
sketch4.addConstraint(Sketcher.Constraint("DistanceY", -1, 1, 0, 3, Q("106.5 mm")))
sketch4.addConstraint(Sketcher.Constraint("DistanceX", 0, 3, -1, 1, Q("10.75 mm")))
sketch4.setExpression("Constraints[7]", "Params.sketch4_diameter")
doc.recompute()
hole2 = body.newObject("PartDesign::Hole", "Hole001")
hole2.Profile = sketch4
hole2.ThreadType = "None"
hole2.setExpression("Diameter", "Params.hole2_diameter")
hole2.DepthType = "Dimension"
hole2.setExpression("Depth", "Params.hole2_depth")
hole2.DrillPoint = "Angled"
hole2.DrillPointAngle = 118

sketch5 = body.newObject("Sketcher::SketchObject", "Sketch004")
sketch5.AttachmentSupport = (doc.getObject("XZ_Plane"), [""])
sketch5.MapMode = "FlatFace"
sketch5.AttachmentOffset = App.Placement(V(0, 0, -120), App.Rotation())
sketch5.addGeometry(Part.LineSegment(V(-21.2, -1, 0), V(-21.2, -6.5, 0)), False)
sketch5.addGeometry(Part.LineSegment(V(-21.2, -6.5, 0), V(-25.5, -6.5, 0)), False)
sketch5.addGeometry(Part.LineSegment(V(-25.5, -6.5, 0), V(-25.5, -4.5, 0)), False)
sketch5.addGeometry(Part.LineSegment(V(-25.5, -4.5, 0), V(-22.8, -4.5, 0)), False)
sketch5.addGeometry(Part.LineSegment(V(-22.8, -4.5, 0), V(-22.8, -2.7, 0)), False)
sketch5.addGeometry(Part.LineSegment(V(-22.8, -2.7, 0), V(-25.5, -2.7, 0)), False)
sketch5.addGeometry(Part.LineSegment(V(-25.5, -2.7, 0), V(-25.5, -1, 0)), False)
sketch5.addGeometry(Part.LineSegment(V(-25.5, -1, 0), V(-21.2, -1, 0)), False)
sketch5.addGeometry(Part.LineSegment(V(-41, -4.5, 0), V(-41, -6.5, 0)), False)
sketch5.addGeometry(Part.LineSegment(V(-41, -6.5, 0), V(-45.2, -6.5, 0)), False)
sketch5.addGeometry(Part.LineSegment(V(-45.2, -6.5, 0), V(-45.2, -1, 0)), False)
sketch5.addGeometry(Part.LineSegment(V(-45.2, -1, 0), V(-41, -1, 0)), False)
sketch5.addGeometry(Part.LineSegment(V(-41, -1, 0), V(-41, -2.7, 0)), False)
sketch5.addGeometry(Part.LineSegment(V(-41, -2.7, 0), V(-43.8, -2.7, 0)), False)
sketch5.addGeometry(Part.LineSegment(V(-43.8, -2.7, 0), V(-43.8, -4.5, 0)), False)
sketch5.addGeometry(Part.LineSegment(V(-43.8, -4.5, 0), V(-41, -4.5, 0)), False)
sketch5.addConstraint(Sketcher.Constraint("Coincident", 0, 2, 1, 1))
sketch5.addConstraint(Sketcher.Constraint("Coincident", 1, 2, 2, 1))
sketch5.addConstraint(Sketcher.Constraint("Coincident", 2, 2, 3, 1))
sketch5.addConstraint(Sketcher.Constraint("Coincident", 3, 2, 4, 1))
sketch5.addConstraint(Sketcher.Constraint("Coincident", 4, 2, 5, 1))
sketch5.addConstraint(Sketcher.Constraint("Coincident", 5, 2, 6, 1))
sketch5.addConstraint(Sketcher.Constraint("Coincident", 6, 2, 7, 1))
sketch5.addConstraint(Sketcher.Constraint("Coincident", 7, 2, 0, 1))
sketch5.addConstraint(Sketcher.Constraint("Coincident", 8, 2, 9, 1))
sketch5.addConstraint(Sketcher.Constraint("Coincident", 9, 2, 10, 1))
sketch5.addConstraint(Sketcher.Constraint("Coincident", 10, 2, 11, 1))
sketch5.addConstraint(Sketcher.Constraint("Coincident", 11, 2, 12, 1))
sketch5.addConstraint(Sketcher.Constraint("Coincident", 12, 2, 13, 1))
sketch5.addConstraint(Sketcher.Constraint("Coincident", 13, 2, 14, 1))
sketch5.addConstraint(Sketcher.Constraint("Coincident", 14, 2, 15, 1))
sketch5.addConstraint(Sketcher.Constraint("Coincident", 15, 2, 8, 1))
sketch5.addConstraint(Sketcher.Constraint("Vertical", 0))
sketch5.addConstraint(Sketcher.Constraint("Horizontal", 1))
sketch5.addConstraint(Sketcher.Constraint("Vertical", 2))
sketch5.addConstraint(Sketcher.Constraint("Horizontal", 3))
sketch5.addConstraint(Sketcher.Constraint("Vertical", 4))
sketch5.addConstraint(Sketcher.Constraint("Horizontal", 5))
sketch5.addConstraint(Sketcher.Constraint("Vertical", 6))
sketch5.addConstraint(Sketcher.Constraint("Horizontal", 7))
sketch5.addConstraint(Sketcher.Constraint("Vertical", 8))
sketch5.addConstraint(Sketcher.Constraint("Horizontal", 9))
sketch5.addConstraint(Sketcher.Constraint("Vertical", 10))
sketch5.addConstraint(Sketcher.Constraint("Horizontal", 11))
sketch5.addConstraint(Sketcher.Constraint("Vertical", 12))
sketch5.addConstraint(Sketcher.Constraint("Horizontal", 13))
sketch5.addConstraint(Sketcher.Constraint("Vertical", 14))
sketch5.addConstraint(Sketcher.Constraint("Horizontal", 15))
sketch5.addConstraint(Sketcher.Constraint("Horizontal", 1, 2, 8, 2))
sketch5.addConstraint(Sketcher.Constraint("Horizontal", 7, 2, 10, 2))
sketch5.addConstraint(Sketcher.Constraint("Horizontal", 5, 2, 12, 2))
sketch5.addConstraint(Sketcher.Constraint("Horizontal", 3, 2, 14, 2))
sketch5.addConstraint(Sketcher.Constraint("Vertical", 2, 2, 5, 2))
sketch5.addConstraint(Sketcher.Constraint("Vertical", 8, 2, 11, 2))
sketch5.addConstraint(Sketcher.Constraint("Equal", 7, 9))
sketch5.addConstraint(Sketcher.Constraint("Equal", 5, 13))
sketch5.addConstraint(Sketcher.Constraint("DistanceY", 2, 1, 2, 2, Q("2 mm")))
sketch5.addConstraint(Sketcher.Constraint("DistanceY", 0, 2, 0, 1, Q("5.5 mm")))
sketch5.addConstraint(Sketcher.Constraint("DistanceY", 4, 1, 4, 2, Q("1.8 mm")))
sketch5.addConstraint(Sketcher.Constraint("DistanceX", 8, 2, -1, 1, Q("41 mm")))
sketch5.addConstraint(Sketcher.Constraint("DistanceX", 1, 2, 1, 1, Q("4.25 mm")))
sketch5.addConstraint(Sketcher.Constraint("DistanceX", 3, 1, 3, 2, Q("2.75 mm")))
sketch5.addConstraint(Sketcher.Constraint("DistanceX", 1, 2, -1, 1, Q("25.5 mm")))
sketch5.addConstraint(Sketcher.Constraint("DistanceY", 0, 2, -1, 1, Q("6.506966 mm")))
sketch5.setExpression("Constraints[40]", "Params.sketch5_height")
sketch5.setExpression("Constraints[41]", "Params.sketch5_height2")
sketch5.setExpression("Constraints[42]", "Params.sketch5_height3")
sketch5.setExpression("Constraints[44]", "Params.sketch5_width")
sketch5.setExpression("Constraints[45]", "Params.sketch5_width2")
pad3 = body.newObject("PartDesign::Pad", "Pad002")
pad3.Profile = sketch5
pad3.setExpression("Length", "Params.pad3_length")

doc.recompute()
